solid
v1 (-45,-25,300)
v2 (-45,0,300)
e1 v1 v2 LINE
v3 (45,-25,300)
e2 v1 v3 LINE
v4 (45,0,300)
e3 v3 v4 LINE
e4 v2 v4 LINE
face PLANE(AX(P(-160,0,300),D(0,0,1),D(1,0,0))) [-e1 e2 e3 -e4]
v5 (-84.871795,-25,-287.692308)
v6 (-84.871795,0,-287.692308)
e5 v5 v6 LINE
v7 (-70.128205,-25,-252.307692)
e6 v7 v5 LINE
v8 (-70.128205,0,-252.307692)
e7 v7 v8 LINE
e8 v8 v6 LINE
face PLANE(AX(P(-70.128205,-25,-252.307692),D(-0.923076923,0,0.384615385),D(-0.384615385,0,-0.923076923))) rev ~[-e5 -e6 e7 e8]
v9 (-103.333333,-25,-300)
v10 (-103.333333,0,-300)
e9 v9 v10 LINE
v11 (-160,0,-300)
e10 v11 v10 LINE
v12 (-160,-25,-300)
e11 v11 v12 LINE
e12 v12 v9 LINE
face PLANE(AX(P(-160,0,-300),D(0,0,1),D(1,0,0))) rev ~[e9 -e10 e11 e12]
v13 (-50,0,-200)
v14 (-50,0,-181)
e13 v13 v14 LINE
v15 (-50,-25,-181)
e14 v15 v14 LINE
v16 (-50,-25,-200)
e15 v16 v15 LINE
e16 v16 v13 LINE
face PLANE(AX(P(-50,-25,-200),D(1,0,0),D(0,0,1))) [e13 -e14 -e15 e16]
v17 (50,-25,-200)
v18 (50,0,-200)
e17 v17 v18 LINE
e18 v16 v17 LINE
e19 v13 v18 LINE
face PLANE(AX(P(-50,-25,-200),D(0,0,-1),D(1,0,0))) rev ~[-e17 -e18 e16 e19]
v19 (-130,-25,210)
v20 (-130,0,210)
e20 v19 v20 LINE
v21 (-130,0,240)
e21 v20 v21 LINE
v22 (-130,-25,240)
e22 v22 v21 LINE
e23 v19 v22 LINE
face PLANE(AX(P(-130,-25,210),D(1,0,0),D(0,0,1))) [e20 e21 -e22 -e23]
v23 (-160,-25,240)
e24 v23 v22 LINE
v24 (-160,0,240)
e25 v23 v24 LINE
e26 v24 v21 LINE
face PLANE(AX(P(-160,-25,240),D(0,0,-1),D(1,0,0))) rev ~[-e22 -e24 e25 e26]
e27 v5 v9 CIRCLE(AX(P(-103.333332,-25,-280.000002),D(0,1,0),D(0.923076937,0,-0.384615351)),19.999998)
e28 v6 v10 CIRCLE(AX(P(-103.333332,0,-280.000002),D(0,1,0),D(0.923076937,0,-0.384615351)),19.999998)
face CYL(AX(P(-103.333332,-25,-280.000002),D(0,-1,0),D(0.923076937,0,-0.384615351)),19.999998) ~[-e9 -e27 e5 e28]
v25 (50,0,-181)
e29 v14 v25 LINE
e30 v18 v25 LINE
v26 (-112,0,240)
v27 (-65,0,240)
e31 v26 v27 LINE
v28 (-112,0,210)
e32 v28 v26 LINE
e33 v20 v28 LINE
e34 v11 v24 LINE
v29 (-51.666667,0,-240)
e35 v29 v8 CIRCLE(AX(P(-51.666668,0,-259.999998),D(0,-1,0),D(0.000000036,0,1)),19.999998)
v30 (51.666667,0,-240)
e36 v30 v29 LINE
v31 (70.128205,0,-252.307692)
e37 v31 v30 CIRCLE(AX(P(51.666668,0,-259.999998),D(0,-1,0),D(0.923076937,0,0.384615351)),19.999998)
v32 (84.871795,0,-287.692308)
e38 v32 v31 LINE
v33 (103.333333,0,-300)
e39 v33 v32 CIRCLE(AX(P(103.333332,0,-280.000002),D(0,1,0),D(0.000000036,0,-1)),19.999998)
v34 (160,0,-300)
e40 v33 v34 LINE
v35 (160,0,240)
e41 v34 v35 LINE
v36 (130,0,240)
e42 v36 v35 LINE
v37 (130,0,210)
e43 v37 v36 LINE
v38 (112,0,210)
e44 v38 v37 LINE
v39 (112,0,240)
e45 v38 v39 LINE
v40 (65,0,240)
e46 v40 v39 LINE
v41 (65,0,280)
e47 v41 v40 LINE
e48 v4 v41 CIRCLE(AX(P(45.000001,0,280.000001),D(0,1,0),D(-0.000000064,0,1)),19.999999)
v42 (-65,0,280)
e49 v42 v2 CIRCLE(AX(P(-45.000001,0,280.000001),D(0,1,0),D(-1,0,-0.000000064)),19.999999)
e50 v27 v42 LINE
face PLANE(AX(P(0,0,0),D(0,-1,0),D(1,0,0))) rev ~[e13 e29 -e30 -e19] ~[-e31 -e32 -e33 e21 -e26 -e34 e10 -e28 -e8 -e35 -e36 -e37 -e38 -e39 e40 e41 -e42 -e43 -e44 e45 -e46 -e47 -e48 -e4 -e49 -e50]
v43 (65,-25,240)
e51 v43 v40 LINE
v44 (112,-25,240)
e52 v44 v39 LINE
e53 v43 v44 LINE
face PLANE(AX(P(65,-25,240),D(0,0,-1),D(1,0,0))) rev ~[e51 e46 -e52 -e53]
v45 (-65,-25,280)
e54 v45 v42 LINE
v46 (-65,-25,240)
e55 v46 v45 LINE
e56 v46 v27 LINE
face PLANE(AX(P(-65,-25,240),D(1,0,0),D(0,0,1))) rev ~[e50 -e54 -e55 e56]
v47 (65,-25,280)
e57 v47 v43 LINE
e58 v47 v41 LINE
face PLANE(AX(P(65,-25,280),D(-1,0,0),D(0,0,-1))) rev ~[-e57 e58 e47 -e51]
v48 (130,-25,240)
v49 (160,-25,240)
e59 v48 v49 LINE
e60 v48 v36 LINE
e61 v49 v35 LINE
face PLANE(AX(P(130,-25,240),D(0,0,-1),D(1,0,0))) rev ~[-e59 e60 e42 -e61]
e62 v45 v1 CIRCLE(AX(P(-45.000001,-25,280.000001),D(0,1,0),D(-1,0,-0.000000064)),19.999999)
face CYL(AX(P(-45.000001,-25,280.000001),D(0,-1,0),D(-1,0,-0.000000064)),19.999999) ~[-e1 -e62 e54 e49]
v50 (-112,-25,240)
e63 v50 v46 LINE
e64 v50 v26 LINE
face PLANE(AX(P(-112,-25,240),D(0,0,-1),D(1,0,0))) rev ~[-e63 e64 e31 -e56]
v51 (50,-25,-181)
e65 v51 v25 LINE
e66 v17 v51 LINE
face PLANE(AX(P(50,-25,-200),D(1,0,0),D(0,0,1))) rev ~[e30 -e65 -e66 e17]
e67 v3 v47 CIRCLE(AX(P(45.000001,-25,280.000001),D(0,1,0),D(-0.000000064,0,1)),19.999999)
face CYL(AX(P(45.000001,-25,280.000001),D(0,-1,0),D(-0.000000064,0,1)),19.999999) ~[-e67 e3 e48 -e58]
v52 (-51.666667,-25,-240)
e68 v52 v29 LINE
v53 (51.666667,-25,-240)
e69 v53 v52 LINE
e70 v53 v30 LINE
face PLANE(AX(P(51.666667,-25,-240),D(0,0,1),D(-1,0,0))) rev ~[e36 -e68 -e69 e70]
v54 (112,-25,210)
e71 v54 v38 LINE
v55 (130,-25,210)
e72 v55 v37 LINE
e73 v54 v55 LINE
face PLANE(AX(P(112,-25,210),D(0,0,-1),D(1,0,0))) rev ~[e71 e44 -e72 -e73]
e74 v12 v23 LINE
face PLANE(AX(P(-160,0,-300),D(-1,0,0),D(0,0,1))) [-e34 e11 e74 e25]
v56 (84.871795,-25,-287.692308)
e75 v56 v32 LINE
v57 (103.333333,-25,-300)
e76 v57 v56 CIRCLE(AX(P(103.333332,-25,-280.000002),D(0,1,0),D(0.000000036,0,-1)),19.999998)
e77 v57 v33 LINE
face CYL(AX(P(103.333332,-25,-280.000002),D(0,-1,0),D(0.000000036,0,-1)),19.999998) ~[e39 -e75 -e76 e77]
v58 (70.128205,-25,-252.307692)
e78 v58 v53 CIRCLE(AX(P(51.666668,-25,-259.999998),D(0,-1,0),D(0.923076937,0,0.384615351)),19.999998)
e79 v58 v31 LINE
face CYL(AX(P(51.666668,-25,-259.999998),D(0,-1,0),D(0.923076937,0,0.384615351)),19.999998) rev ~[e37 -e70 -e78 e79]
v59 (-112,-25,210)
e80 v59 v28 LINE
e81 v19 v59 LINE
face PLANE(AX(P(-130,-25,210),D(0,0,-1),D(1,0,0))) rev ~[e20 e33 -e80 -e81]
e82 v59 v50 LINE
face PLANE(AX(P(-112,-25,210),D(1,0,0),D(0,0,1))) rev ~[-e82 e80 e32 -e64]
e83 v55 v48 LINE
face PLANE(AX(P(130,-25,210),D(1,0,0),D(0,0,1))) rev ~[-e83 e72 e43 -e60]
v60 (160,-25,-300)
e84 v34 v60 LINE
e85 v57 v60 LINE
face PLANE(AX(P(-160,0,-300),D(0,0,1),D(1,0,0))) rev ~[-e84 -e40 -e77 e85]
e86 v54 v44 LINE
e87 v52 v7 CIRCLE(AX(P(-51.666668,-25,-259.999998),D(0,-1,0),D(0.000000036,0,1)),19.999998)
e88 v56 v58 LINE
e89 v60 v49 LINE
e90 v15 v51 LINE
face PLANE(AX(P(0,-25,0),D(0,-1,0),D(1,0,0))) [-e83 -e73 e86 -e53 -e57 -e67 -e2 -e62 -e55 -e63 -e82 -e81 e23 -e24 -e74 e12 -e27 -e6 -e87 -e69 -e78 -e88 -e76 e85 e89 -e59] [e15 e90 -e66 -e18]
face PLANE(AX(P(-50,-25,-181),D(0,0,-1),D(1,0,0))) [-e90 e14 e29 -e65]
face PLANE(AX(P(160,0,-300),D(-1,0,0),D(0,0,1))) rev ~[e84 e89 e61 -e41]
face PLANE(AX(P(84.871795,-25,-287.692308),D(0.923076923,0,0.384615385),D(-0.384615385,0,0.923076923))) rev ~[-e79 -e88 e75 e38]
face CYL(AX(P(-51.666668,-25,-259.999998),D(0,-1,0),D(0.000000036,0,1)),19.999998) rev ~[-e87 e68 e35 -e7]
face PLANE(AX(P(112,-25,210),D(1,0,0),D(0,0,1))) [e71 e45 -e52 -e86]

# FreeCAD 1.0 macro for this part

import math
import FreeCAD as App
import Part
import Sketcher

V = App.Vector
Q = App.Units.Quantity

doc = App.newDocument("Part")
body = doc.addObject("PartDesign::Body", "Body")

sketch1 = doc.addObject("Sketcher::SketchObject", "Sketch")
body.addObject(sketch1)
sketch1.AttachmentSupport = (doc.XZ_Plane, [""])
sketch1.MapMode = "FlatFace"
sketch1.addGeometry(Part.LineSegment(V(-160, 300, 0), V(-160, -300, 0)), False)
sketch1.addGeometry(Part.LineSegment(V(-160, -300, 0), V(160, -300, 0)), False)
sketch1.addGeometry(Part.LineSegment(V(160, -300, 0), V(160, 300, 0)), False)
sketch1.addGeometry(Part.LineSegment(V(160, 300, 0), V(-160, 300, 0)), False)
sketch1.addConstraint(Sketcher.Constraint("Coincident", 0, 2, 1, 1))
sketch1.addConstraint(Sketcher.Constraint("Coincident", 1, 2, 2, 1))
sketch1.addConstraint(Sketcher.Constraint("Coincident", 2, 2, 3, 1))
sketch1.addConstraint(Sketcher.Constraint("Coincident", 3, 2, 0, 1))
sketch1.addConstraint(Sketcher.Constraint("Vertical", 0))
sketch1.addConstraint(Sketcher.Constraint("Horizontal", 1))
sketch1.addConstraint(Sketcher.Constraint("Vertical", 2))
sketch1.addConstraint(Sketcher.Constraint("Horizontal", 3))
sketch1.addConstraint(Sketcher.Constraint("Symmetric", 0, 2, 2, 2, -1, 1))
sketch1.addConstraint(Sketcher.Constraint("DistanceX", 1, 1, 1, 2, Q("320 mm")))
sketch1.addConstraint(Sketcher.Constraint("DistanceY", 0, 2, 0, 1, Q("600 mm")))
pad1 = doc.addObject("PartDesign::Pad", "Pad")
body.addObject(pad1)
pad1.Profile = sketch1
pad1.Length = 25

sketch2 = doc.addObject("Sketcher::SketchObject", "Sketch001")
body.addObject(sketch2)
sketch2.AttachmentSupport = (doc.XZ_Plane, [""])
sketch2.MapMode = "FlatFace"
sketch2.AttachmentOffset = App.Placement(V(0, 0, 25), App.Rotation())
sketch2.addGeometry(Part.LineSegment(V(-160, 300, 0), V(-160, 240, 0)), False)
sketch2.addGeometry(Part.LineSegment(V(-160, 240, 0), V(-130, 240, 0)), False)
sketch2.addGeometry(Part.LineSegment(V(-130, 240, 0), V(-130, 210, 0)), False)
sketch2.addGeometry(Part.LineSegment(V(-130, 210, 0), V(-112, 210, 0)), False)
sketch2.addGeometry(Part.LineSegment(V(-112, 210, 0), V(-112, 240, 0)), False)
sketch2.addGeometry(Part.LineSegment(V(-112, 240, 0), V(-65, 240, 0)), False)
sketch2.addGeometry(Part.LineSegment(V(-65, 240, 0), V(-65, 280, 0)), False)
sketch2.addGeometry(Part.ArcOfCircle(Part.Circle(V(-45, 280, 0), V(0, 0, 1), 20), math.radians(90), math.radians(180)), False)
sketch2.addGeometry(Part.LineSegment(V(-45, 300, 0), V(-160, 300, 0)), False)
sketch2.addGeometry(Part.LineSegment(V(160, 240, 0), V(160, 300, 0)), False)
sketch2.addGeometry(Part.LineSegment(V(160, 300, 0), V(45, 300, 0)), False)
sketch2.addGeometry(Part.ArcOfCircle(Part.Circle(V(45, 280, 0), V(0, 0, 1), 20), math.radians(0), math.radians(90)), False)
sketch2.addGeometry(Part.LineSegment(V(65, 280, 0), V(65, 240, 0)), False)
sketch2.addGeometry(Part.LineSegment(V(65, 240, 0), V(112, 240, 0)), False)
sketch2.addGeometry(Part.LineSegment(V(112, 240, 0), V(112, 210, 0)), False)
sketch2.addGeometry(Part.LineSegment(V(112, 210, 0), V(130, 210, 0)), False)
sketch2.addGeometry(Part.LineSegment(V(130, 210, 0), V(130, 240, 0)), False)
sketch2.addGeometry(Part.LineSegment(V(130, 240, 0), V(160, 240, 0)), False)
sketch2.addGeometry(Part.LineSegment(V(-70, -252, 0), V(-85, -288, 0)), False)
sketch2.addGeometry(Part.ArcOfCircle(Part.Circle(V(-103, -280, 0), V(0, 0, 1), 20), math.radians(-90), math.radians(-23)), False)
sketch2.addGeometry(Part.LineSegment(V(-103, -300, 0), V(103, -300, 0)), False)
sketch2.addGeometry(Part.ArcOfCircle(Part.Circle(V(103, -280, 0), V(0, 0, 1), 20), math.radians(-157), math.radians(-90)), False)
sketch2.addGeometry(Part.LineSegment(V(85, -288, 0), V(70, -252, 0)), False)
sketch2.addGeometry(Part.ArcOfCircle(Part.Circle(V(52, -260, 0), V(0, 0, 1), 20), math.radians(23), math.radians(90)), False)
sketch2.addGeometry(Part.LineSegment(V(52, -240, 0), V(-52, -240, 0)), False)
sketch2.addGeometry(Part.ArcOfCircle(Part.Circle(V(-52, -260, 0), V(0, 0, 1), 20), math.radians(90), math.radians(157)), False)
sketch2.addGeometry(Part.LineSegment(V(-50, -181, 0), V(-50, -200, 0)), False)
sketch2.addGeometry(Part.LineSegment(V(-50, -200, 0), V(50, -200, 0)), False)
sketch2.addGeometry(Part.LineSegment(V(50, -200, 0), V(50, -181, 0)), False)
sketch2.addGeometry(Part.LineSegment(V(50, -181, 0), V(-50, -181, 0)), False)
sketch2.addConstraint(Sketcher.Constraint("Coincident", 0, 2, 1, 1))
sketch2.addConstraint(Sketcher.Constraint("Coincident", 1, 2, 2, 1))
sketch2.addConstraint(Sketcher.Constraint("Coincident", 2, 2, 3, 1))
sketch2.addConstraint(Sketcher.Constraint("Coincident", 3, 2, 4, 1))
sketch2.addConstraint(Sketcher.Constraint("Coincident", 4, 2, 5, 1))
sketch2.addConstraint(Sketcher.Constraint("Coincident", 5, 2, 6, 1))
sketch2.addConstraint(Sketcher.Constraint("Tangent", 6, 2, 7, 2))
sketch2.addConstraint(Sketcher.Constraint("Tangent", 7, 1, 8, 1))
sketch2.addConstraint(Sketcher.Constraint("Coincident", 8, 2, 0, 1))
sketch2.addConstraint(Sketcher.Constraint("Coincident", 9, 2, 10, 1))
sketch2.addConstraint(Sketcher.Constraint("Tangent", 10, 2, 11, 2))
sketch2.addConstraint(Sketcher.Constraint("Tangent", 11, 1, 12, 1))
sketch2.addConstraint(Sketcher.Constraint("Coincident", 12, 2, 13, 1))
sketch2.addConstraint(Sketcher.Constraint("Coincident", 13, 2, 14, 1))
sketch2.addConstraint(Sketcher.Constraint("Coincident", 14, 2, 15, 1))
sketch2.addConstraint(Sketcher.Constraint("Coincident", 15, 2, 16, 1))
sketch2.addConstraint(Sketcher.Constraint("Coincident", 16, 2, 17, 1))
sketch2.addConstraint(Sketcher.Constraint("Coincident", 17, 2, 9, 1))
sketch2.addConstraint(Sketcher.Constraint("Tangent", 18, 2, 19, 2))
sketch2.addConstraint(Sketcher.Constraint("Tangent", 19, 1, 20, 1))
sketch2.addConstraint(Sketcher.Constraint("Tangent", 20, 2, 21, 2))
sketch2.addConstraint(Sketcher.Constraint("Tangent", 21, 1, 22, 1))
sketch2.addConstraint(Sketcher.Constraint("Tangent", 22, 2, 23, 1))
sketch2.addConstraint(Sketcher.Constraint("Tangent", 23, 2, 24, 1))
sketch2.addConstraint(Sketcher.Constraint("Tangent", 24, 2, 25, 1))
sketch2.addConstraint(Sketcher.Constraint("Tangent", 25, 2, 18, 1))
sketch2.addConstraint(Sketcher.Constraint("Coincident", 26, 2, 27, 1))
sketch2.addConstraint(Sketcher.Constraint("Coincident", 27, 2, 28, 1))
sketch2.addConstraint(Sketcher.Constraint("Coincident", 28, 2, 29, 1))
sketch2.addConstraint(Sketcher.Constraint("Coincident", 29, 2, 26, 1))
sketch2.addConstraint(Sketcher.Constraint("Vertical", 0))
sketch2.addConstraint(Sketcher.Constraint("Horizontal", 1))
sketch2.addConstraint(Sketcher.Constraint("Vertical", 2))
sketch2.addConstraint(Sketcher.Constraint("Horizontal", 3))
sketch2.addConstraint(Sketcher.Constraint("Vertical", 4))
sketch2.addConstraint(Sketcher.Constraint("Horizontal", 5))
sketch2.addConstraint(Sketcher.Constraint("Vertical", 6))
sketch2.addConstraint(Sketcher.Constraint("Horizontal", 8))
sketch2.addConstraint(Sketcher.Constraint("Vertical", 9))
sketch2.addConstraint(Sketcher.Constraint("Horizontal", 10))
sketch2.addConstraint(Sketcher.Constraint("Vertical", 12))
sketch2.addConstraint(Sketcher.Constraint("Horizontal", 13))
sketch2.addConstraint(Sketcher.Constraint("Vertical", 14))
sketch2.addConstraint(Sketcher.Constraint("Horizontal", 15))
sketch2.addConstraint(Sketcher.Constraint("Vertical", 16))
sketch2.addConstraint(Sketcher.Constraint("Horizontal", 17))
sketch2.addConstraint(Sketcher.Constraint("Horizontal", 20))
sketch2.addConstraint(Sketcher.Constraint("Horizontal", 24))
sketch2.addConstraint(Sketcher.Constraint("Vertical", 26))
sketch2.addConstraint(Sketcher.Constraint("Horizontal", 27))
sketch2.addConstraint(Sketcher.Constraint("Vertical", 28))
sketch2.addConstraint(Sketcher.Constraint("Horizontal", 29))
sketch2.addConstraint(Sketcher.Constraint("Equal", 7, 11))
sketch2.addConstraint(Sketcher.Constraint("Equal", 11, 19))
sketch2.addConstraint(Sketcher.Constraint("Equal", 19, 21))
sketch2.addConstraint(Sketcher.Constraint("Equal", 21, 23))
sketch2.addConstraint(Sketcher.Constraint("Equal", 23, 25))
sketch2.addConstraint(Sketcher.Constraint("Symmetric", 7, 3, 11, 3, -2))
sketch2.addConstraint(Sketcher.Constraint("Symmetric", 4, 2, 13, 2, -2))
sketch2.addConstraint(Sketcher.Constraint("Symmetric", 2, 2, 15, 2, -2))
sketch2.addConstraint(Sketcher.Constraint("Symmetric", 0, 2, 17, 2, -2))
sketch2.addConstraint(Sketcher.Constraint("Symmetric", 18, 2, 21, 1, -2))
sketch2.addConstraint(Sketcher.Constraint("Horizontal", 1, 2, 4, 2))
sketch2.addConstraint(Sketcher.Constraint("Equal", 17, 2))
sketch2.addConstraint(Sketcher.Constraint("Radius", 7, Q("19.999999 mm")))
sketch2.addConstraint(Sketcher.Constraint("DistanceX", 1, 1, 1, 2, Q("30 mm")))
sketch2.addConstraint(Sketcher.Constraint("DistanceX", 3, 1, 3, 2, Q("18 mm")))
sketch2.addConstraint(Sketcher.Constraint("DistanceX", 5, 1, 5, 2, Q("47 mm")))
sketch2.addConstraint(Sketcher.Constraint("DistanceX", 27, 1, 27, 2, Q("100 mm")))
sketch2.addConstraint(Sketcher.Constraint("DistanceY", 0, 2, 0, 1, Q("60 mm")))
sketch2.addConstraint(Sketcher.Constraint("DistanceY", 26, 2, 26, 1, Q("19 mm")))
sketch2.addConstraint(Sketcher.Constraint("DistanceX", 7, 3, -1, 1, Q("45.000001 mm")))
sketch2.addConstraint(Sketcher.Constraint("DistanceY", -1, 1, 7, 3, Q("280.000001 mm")))
sketch2.addConstraint(Sketcher.Constraint("DistanceY", 19, 3, -1, 1, Q("280.000002 mm")))
sketch2.addConstraint(Sketcher.Constraint("DistanceY", 23, 3, -1, 1, Q("259.999998 mm")))
sketch2.addConstraint(Sketcher.Constraint("DistanceX", 26, 2, -1, 1, Q("50 mm")))
sketch2.addConstraint(Sketcher.Constraint("DistanceY", 26, 2, -1, 1, Q("200 mm")))
sketch2.addConstraint(Sketcher.Constraint("DistanceX", 19, 3, 23, 3, Q("155 mm")))
sketch2.addConstraint(Sketcher.Constraint("DistanceX", 20, 1, 20, 2, Q("206.666666 mm")))
pocket1 = doc.addObject("PartDesign::Pocket", "Pocket")
body.addObject(pocket1)
pocket1.Profile = sketch2
pocket1.Type = "ThroughAll"

doc.recompute()
